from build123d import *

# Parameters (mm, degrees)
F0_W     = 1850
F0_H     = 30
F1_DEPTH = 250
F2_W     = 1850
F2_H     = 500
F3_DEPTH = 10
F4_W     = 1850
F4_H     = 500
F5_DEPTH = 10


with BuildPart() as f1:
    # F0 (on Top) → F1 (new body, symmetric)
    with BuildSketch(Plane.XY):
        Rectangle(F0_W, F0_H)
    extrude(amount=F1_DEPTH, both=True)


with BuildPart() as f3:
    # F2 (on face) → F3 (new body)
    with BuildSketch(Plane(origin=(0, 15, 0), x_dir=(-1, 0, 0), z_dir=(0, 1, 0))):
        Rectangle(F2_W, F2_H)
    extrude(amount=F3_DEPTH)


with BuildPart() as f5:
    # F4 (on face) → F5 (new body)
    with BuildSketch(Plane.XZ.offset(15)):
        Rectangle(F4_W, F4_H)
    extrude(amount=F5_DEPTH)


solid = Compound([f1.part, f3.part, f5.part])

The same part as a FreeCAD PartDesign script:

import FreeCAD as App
import Part
import Sketcher
from FreeCAD import Vector
Q = App.Units.Quantity


def add_polygon(sketch, points):
    """Adds a closed chain of lines whose ends are joined by coincident constraints."""
    first, n = sketch.GeometryCount, len(points)
    for a, b in zip(points, points[1:] + points[:1]):
        sketch.addGeometry(Part.LineSegment(App.Vector(*a, 0), App.Vector(*b, 0)), False)
    for i in range(n):
        sketch.addConstraint(Sketcher.Constraint("Coincident", first + i, 2, first + (i + 1) % n, 1))

doc = App.newDocument("Part")
params = doc.addObject("Spreadsheet::Sheet", "Params")
for row, (alias, value) in enumerate([
    ("sketch1_width", "1850 mm"),
    ("sketch1_height", "30 mm"),
    ("pad1_length", "500 mm"),
    ("sketch2_width", "1850 mm"),
    ("sketch2_height", "500 mm"),
    ("pad2_length", "10 mm"),
    ("sketch3_width", "1850 mm"),
    ("sketch3_height", "500 mm"),
    ("pad3_length", "10 mm"),
], start=1):
    params.set(f"A{row}", alias)
    params.set(f"B{row}", "=" + value)
    params.setAlias(f"B{row}", alias)

body = doc.addObject("PartDesign::Body", "Body")

# Sketch on XY plane
sketch1 = body.newObject("Sketcher::SketchObject", "Sketch")
sketch1.AttachmentSupport = (doc.getObject("XY_Plane"), [""])
sketch1.MapMode = "FlatFace"
add_polygon(sketch1, [(-925, 15), (-925, -15), (925, -15), (925, 15)])  # lines 0-3
sketch1.addConstraint([
    Sketcher.Constraint("Vertical", 0),
    Sketcher.Constraint("Horizontal", 1),
    Sketcher.Constraint("Vertical", 2),
    Sketcher.Constraint("Horizontal", 3),
    Sketcher.Constraint("Symmetric", 0, 2, 2, 2, -1, 1),
    Sketcher.Constraint("DistanceX", 1, 1, 1, 2, Q("1850 mm")),
    Sketcher.Constraint("DistanceY", 0, 2, 0, 1, Q("30 mm")),
])
sketch1.setExpression("Constraints[9]", "Params.sketch1_width")
sketch1.setExpression("Constraints[10]", "Params.sketch1_height")
pad1 = body.newObject("PartDesign::Pad", "Pad")
pad1.Profile = sketch1
pad1.setExpression("Length", "Params.pad1_length")
pad1.Midplane = True
body2 = doc.addObject("PartDesign::Body", "Body001")

# Sketch on XZ plane
sketch2 = body2.newObject("Sketcher::SketchObject", "Sketch001")
sketch2.AttachmentSupport = (doc.getObject("XZ_Plane001"), [""])
sketch2.MapMode = "FlatFace"
sketch2.AttachmentOffset = App.Placement(Vector(0, 0, -15), App.Rotation())
add_polygon(sketch2, [(925, 250), (925, -250), (-925, -250), (-925, 250)])  # lines 0-3
sketch2.addConstraint([
    Sketcher.Constraint("Vertical", 0),
    Sketcher.Constraint("Horizontal", 1),
    Sketcher.Constraint("Vertical", 2),
    Sketcher.Constraint("Horizontal", 3),
    Sketcher.Constraint("Symmetric", 0, 2, 2, 2, -1, 1),
    Sketcher.Constraint("DistanceX", 1, 2, 1, 1, Q("1850 mm")),
    Sketcher.Constraint("DistanceY", 0, 2, 0, 1, Q("500 mm")),
])
sketch2.setExpression("Constraints[9]", "Params.sketch2_width")
sketch2.setExpression("Constraints[10]", "Params.sketch2_height")
pad2 = body2.newObject("PartDesign::Pad", "Pad001")
pad2.Profile = sketch2
pad2.setExpression("Length", "Params.pad2_length")
pad2.Reversed = True
body3 = doc.addObject("PartDesign::Body", "Body002")

# Sketch on XZ plane
sketch3 = body3.newObject("Sketcher::SketchObject", "Sketch002")
sketch3.AttachmentSupport = (doc.getObject("XZ_Plane002"), [""])
sketch3.MapMode = "FlatFace"
sketch3.AttachmentOffset = App.Placement(Vector(0, 0, 15), App.Rotation())
add_polygon(sketch3, [(-925, 250), (-925, -250), (925, -250), (925, 250)])  # lines 0-3
sketch3.addConstraint([
    Sketcher.Constraint("Vertical", 0),
    Sketcher.Constraint("Horizontal", 1),
    Sketcher.Constraint("Vertical", 2),
    Sketcher.Constraint("Horizontal", 3),
    Sketcher.Constraint("Symmetric", 0, 2, 2, 2, -1, 1),
    Sketcher.Constraint("DistanceX", 1, 1, 1, 2, Q("1850 mm")),
    Sketcher.Constraint("DistanceY", 0, 2, 0, 1, Q("500 mm")),
])
sketch3.setExpression("Constraints[9]", "Params.sketch3_width")
sketch3.setExpression("Constraints[10]", "Params.sketch3_height")
pad3 = body3.newObject("PartDesign::Pad", "Pad002")
pad3.Profile = sketch3
pad3.setExpression("Length", "Params.pad3_length")

doc.recompute()
